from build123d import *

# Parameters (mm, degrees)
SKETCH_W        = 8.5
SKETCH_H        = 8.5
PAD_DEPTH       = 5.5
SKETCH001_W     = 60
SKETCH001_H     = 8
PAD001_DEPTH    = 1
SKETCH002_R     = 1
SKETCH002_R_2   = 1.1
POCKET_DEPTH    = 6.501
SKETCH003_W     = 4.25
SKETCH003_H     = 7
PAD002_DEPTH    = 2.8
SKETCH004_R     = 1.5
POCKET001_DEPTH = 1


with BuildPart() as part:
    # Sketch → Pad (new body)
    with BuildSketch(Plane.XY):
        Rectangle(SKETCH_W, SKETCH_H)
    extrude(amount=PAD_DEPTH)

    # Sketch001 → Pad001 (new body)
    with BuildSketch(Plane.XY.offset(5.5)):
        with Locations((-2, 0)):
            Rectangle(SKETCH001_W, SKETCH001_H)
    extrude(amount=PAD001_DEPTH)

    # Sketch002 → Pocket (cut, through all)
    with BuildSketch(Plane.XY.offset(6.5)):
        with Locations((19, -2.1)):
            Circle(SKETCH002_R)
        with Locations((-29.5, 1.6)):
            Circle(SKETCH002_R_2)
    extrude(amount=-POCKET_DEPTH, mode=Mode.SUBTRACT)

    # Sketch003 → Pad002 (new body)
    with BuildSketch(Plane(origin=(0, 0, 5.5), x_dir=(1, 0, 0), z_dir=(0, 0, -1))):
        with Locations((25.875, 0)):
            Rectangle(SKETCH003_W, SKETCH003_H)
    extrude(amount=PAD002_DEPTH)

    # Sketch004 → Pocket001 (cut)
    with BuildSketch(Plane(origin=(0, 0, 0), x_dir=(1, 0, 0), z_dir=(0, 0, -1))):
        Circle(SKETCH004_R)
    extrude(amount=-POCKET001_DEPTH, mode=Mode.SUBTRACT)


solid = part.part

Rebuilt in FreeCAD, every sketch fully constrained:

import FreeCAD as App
import Part
import Sketcher

V = App.Vector


def add_polygon(sketch, points):
    """Adds a closed chain of lines whose ends are joined by coincident constraints."""
    first, n = sketch.GeometryCount, len(points)
    for a, b in zip(points, points[1:] + points[:1]):
        sketch.addGeometry(Part.LineSegment(App.Vector(*a, 0), App.Vector(*b, 0)), False)
    for i in range(n):
        sketch.addConstraint(Sketcher.Constraint("Coincident", first + i, 2, first + (i + 1) % n, 1))

doc = App.newDocument("Part")
body = doc.addObject("PartDesign::Body", "Body")

# Sketch on XY plane
sketch1 = body.newObject("Sketcher::SketchObject", "Sketch")
sketch1.AttachmentSupport = (doc.getObject("XY_Plane"), [""])
sketch1.MapMode = "FlatFace"
add_polygon(sketch1, [(-4, 4), (-4, -4), (4, -4), (4, 4)])  # lines 0-3
sketch1.addConstraint([
    Sketcher.Constraint("Vertical", 0),
    Sketcher.Constraint("Horizontal", 1),
    Sketcher.Constraint("Vertical", 2),
    Sketcher.Constraint("Horizontal", 3),
    Sketcher.Constraint("Symmetric", 0, 2, 2, 2, -1, 1),
    Sketcher.Constraint("Equal", 3, 0),
    Sketcher.Constraint("DistanceX", 1, 1, 1, 2, 8.5),
])
pad1 = body.newObject("PartDesign::Pad", "Pad")
pad1.Profile = sketch1
pad1.Length = 5.5

# Sketch on XY plane
sketch2 = body.newObject("Sketcher::SketchObject", "Sketch001")
sketch2.AttachmentSupport = (doc.getObject("XY_Plane"), [""])
sketch2.MapMode = "FlatFace"
sketch2.AttachmentOffset = App.Placement(V(0, 0, 5.5), App.Rotation())
add_polygon(sketch2, [(-32, 4), (-32, -4), (28, -4), (28, 4)])  # lines 0-3
sketch2.addConstraint([
    Sketcher.Constraint("Vertical", 0),
    Sketcher.Constraint("Horizontal", 1),
    Sketcher.Constraint("Vertical", 2),
    Sketcher.Constraint("Horizontal", 3),
    Sketcher.Constraint("DistanceX", 1, 1, 1, 2, 60.0),
    Sketcher.Constraint("DistanceY", 0, 2, 0, 1, 8.0),
    Sketcher.Constraint("DistanceX", 0, 2, -1, 1, 32.0),
    Sketcher.Constraint("DistanceY", 0, 2, -1, 1, 4.0),
])
pad2 = body.newObject("PartDesign::Pad", "Pad001")
pad2.Profile = sketch2
pad2.Length = 1

# Sketch on XY plane
sketch3 = body.newObject("Sketcher::SketchObject", "Sketch002")
sketch3.AttachmentSupport = (doc.getObject("XY_Plane"), [""])
sketch3.MapMode = "FlatFace"
sketch3.AttachmentOffset = App.Placement(V(0, 0, 6.5), App.Rotation())
sketch3.addGeometry([
    Part.Circle(V(19, -2.1, 0), V(0, 0, 1), 1),
    Part.Circle(V(-29.5, 1.6, 0), V(0, 0, 1), 1.1),
], False)
sketch3.addConstraint([
    Sketcher.Constraint("Diameter", 0, 2.0),
    Sketcher.Constraint("Diameter", 1, 2.2),
    Sketcher.Constraint("DistanceX", -1, 1, 0, 3, 19.0),
    Sketcher.Constraint("DistanceY", 0, 3, -1, 1, 2.1),
    Sketcher.Constraint("DistanceX", 1, 3, -1, 1, 29.5),
    Sketcher.Constraint("DistanceY", -1, 1, 1, 3, 1.6),
])
pocket1 = body.newObject("PartDesign::Pocket", "Pocket")
pocket1.Profile = sketch3
pocket1.Type = "ThroughAll"

# Sketch on XY plane
sketch4 = body.newObject("Sketcher::SketchObject", "Sketch003")
sketch4.AttachmentSupport = (doc.getObject("XY_Plane"), [""])
sketch4.MapMode = "FlatFace"
sketch4.AttachmentOffset = App.Placement(V(0, 0, 5.5), App.Rotation())
add_polygon(sketch4, [(23.8, -3.5), (23.8, 3.5), (28, 3.5), (28, -3.5)])  # lines 0-3
sketch4.addConstraint([
    Sketcher.Constraint("Vertical", 0),
    Sketcher.Constraint("Horizontal", 1),
    Sketcher.Constraint("Vertical", 2),
    Sketcher.Constraint("Horizontal", 3),
    Sketcher.Constraint("DistanceY", 0, 1, 0, 2, 7.0),
    Sketcher.Constraint("DistanceX", -1, 1, 1, 2, 28.0),
    Sketcher.Constraint("DistanceX", 1, 1, 1, 2, 4.25),
    Sketcher.Constraint("DistanceY", -1, 1, 0, 2, 3.5),
])
pad3 = body.newObject("PartDesign::Pad", "Pad002")
pad3.Profile = sketch4
pad3.Length = 2.8
pad3.Reversed = True

# Sketch on XY plane
sketch5 = body.newObject("Sketcher::SketchObject", "Sketch004")
sketch5.AttachmentSupport = (doc.getObject("XY_Plane"), [""])
sketch5.MapMode = "FlatFace"
sketch5.addGeometry(Part.Circle(V(0, 0, 0), V(0, 0, 1), 1.5), False)
sketch5.addConstraint([
    Sketcher.Constraint("Coincident", 0, 3, -1, 1),
    Sketcher.Constraint("Diameter", 0, 3.0),
])
pocket2 = body.newObject("PartDesign::Pocket", "Pocket001")
pocket2.Profile = sketch5
pocket2.Length = 1
pocket2.Reversed = True

doc.recompute()
